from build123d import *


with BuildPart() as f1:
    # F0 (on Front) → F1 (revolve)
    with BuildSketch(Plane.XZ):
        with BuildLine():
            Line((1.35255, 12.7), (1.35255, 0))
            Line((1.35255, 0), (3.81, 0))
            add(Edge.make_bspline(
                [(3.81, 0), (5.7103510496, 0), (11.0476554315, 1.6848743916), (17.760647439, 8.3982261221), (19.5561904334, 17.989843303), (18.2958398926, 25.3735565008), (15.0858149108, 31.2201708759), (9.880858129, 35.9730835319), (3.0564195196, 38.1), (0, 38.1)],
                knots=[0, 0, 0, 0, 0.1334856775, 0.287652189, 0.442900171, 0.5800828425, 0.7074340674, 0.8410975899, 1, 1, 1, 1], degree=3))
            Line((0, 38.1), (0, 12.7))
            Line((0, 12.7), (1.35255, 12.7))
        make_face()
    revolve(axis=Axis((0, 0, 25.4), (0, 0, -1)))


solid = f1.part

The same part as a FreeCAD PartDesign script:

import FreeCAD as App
import Part
import Sketcher

V = App.Vector
Q = App.Units.Quantity

doc = App.newDocument("Part")
body = doc.addObject("PartDesign::Body", "Body")

sketch1 = body.newObject("Sketcher::SketchObject", "Sketch")
sketch1.AttachmentSupport = (doc.getObject("XZ_Plane"), [""])
sketch1.MapMode = "FlatFace"
sketch1.addGeometry([
    Part.LineSegment(V(1.35255, 12.7, 0), V(1.35255, 0, 0)),
    Part.LineSegment(V(1.35255, 0, 0), V(3.81, 0, 0)),
    Part.BSplineCurve([V(3.81, 0, 0), V(5.710351, 0, 0), V(11.047655, 1.684874, 0), V(17.760647, 8.398226, 0), V(19.55619, 17.989843, 0), V(18.29584, 25.373557, 0), V(15.085815, 31.220171, 0), V(9.880858, 35.973084, 0), V(3.05642, 38.1, 0), V(0, 38.1, 0)], [4, 1, 1, 1, 1, 1, 1, 4], [0, 0.133485678, 0.287652189, 0.442900171, 0.580082842, 0.707434067, 0.84109759, 1], False, 3, [1, 1, 1, 1, 1, 1, 1, 1, 1, 1], False),
    Part.LineSegment(V(0, 38.1, 0), V(0, 12.7, 0)),
    Part.LineSegment(V(0, 12.7, 0), V(1.35255, 12.7, 0)),
], False)
sketch1.addConstraint([
    Sketcher.Constraint("Block", 2),
    Sketcher.Constraint("Coincident", 0, 2, 1, 1),
    Sketcher.Constraint("Coincident", 1, 2, 2, 1),
    Sketcher.Constraint("Coincident", 2, 2, 3, 1),
    Sketcher.Constraint("Coincident", 3, 2, 4, 1),
    Sketcher.Constraint("Coincident", 4, 2, 0, 1),
    Sketcher.Constraint("Vertical", 0),
    Sketcher.Constraint("Horizontal", 1),
    Sketcher.Constraint("Vertical", 3),
    Sketcher.Constraint("Horizontal", 4),
    Sketcher.Constraint("DistanceY", 3, 2, 3, 1, Q("1 in")),
    Sketcher.Constraint("DistanceX", 1, 1, 1, 2, Q("2.45745 mm")),
])
revolution = body.newObject("PartDesign::Revolution", "Revolution")
revolution.Profile = sketch1
revolution.ReferenceAxis = (sketch1, ["V_Axis"])
revolution.Angle = 360

doc.recompute()
